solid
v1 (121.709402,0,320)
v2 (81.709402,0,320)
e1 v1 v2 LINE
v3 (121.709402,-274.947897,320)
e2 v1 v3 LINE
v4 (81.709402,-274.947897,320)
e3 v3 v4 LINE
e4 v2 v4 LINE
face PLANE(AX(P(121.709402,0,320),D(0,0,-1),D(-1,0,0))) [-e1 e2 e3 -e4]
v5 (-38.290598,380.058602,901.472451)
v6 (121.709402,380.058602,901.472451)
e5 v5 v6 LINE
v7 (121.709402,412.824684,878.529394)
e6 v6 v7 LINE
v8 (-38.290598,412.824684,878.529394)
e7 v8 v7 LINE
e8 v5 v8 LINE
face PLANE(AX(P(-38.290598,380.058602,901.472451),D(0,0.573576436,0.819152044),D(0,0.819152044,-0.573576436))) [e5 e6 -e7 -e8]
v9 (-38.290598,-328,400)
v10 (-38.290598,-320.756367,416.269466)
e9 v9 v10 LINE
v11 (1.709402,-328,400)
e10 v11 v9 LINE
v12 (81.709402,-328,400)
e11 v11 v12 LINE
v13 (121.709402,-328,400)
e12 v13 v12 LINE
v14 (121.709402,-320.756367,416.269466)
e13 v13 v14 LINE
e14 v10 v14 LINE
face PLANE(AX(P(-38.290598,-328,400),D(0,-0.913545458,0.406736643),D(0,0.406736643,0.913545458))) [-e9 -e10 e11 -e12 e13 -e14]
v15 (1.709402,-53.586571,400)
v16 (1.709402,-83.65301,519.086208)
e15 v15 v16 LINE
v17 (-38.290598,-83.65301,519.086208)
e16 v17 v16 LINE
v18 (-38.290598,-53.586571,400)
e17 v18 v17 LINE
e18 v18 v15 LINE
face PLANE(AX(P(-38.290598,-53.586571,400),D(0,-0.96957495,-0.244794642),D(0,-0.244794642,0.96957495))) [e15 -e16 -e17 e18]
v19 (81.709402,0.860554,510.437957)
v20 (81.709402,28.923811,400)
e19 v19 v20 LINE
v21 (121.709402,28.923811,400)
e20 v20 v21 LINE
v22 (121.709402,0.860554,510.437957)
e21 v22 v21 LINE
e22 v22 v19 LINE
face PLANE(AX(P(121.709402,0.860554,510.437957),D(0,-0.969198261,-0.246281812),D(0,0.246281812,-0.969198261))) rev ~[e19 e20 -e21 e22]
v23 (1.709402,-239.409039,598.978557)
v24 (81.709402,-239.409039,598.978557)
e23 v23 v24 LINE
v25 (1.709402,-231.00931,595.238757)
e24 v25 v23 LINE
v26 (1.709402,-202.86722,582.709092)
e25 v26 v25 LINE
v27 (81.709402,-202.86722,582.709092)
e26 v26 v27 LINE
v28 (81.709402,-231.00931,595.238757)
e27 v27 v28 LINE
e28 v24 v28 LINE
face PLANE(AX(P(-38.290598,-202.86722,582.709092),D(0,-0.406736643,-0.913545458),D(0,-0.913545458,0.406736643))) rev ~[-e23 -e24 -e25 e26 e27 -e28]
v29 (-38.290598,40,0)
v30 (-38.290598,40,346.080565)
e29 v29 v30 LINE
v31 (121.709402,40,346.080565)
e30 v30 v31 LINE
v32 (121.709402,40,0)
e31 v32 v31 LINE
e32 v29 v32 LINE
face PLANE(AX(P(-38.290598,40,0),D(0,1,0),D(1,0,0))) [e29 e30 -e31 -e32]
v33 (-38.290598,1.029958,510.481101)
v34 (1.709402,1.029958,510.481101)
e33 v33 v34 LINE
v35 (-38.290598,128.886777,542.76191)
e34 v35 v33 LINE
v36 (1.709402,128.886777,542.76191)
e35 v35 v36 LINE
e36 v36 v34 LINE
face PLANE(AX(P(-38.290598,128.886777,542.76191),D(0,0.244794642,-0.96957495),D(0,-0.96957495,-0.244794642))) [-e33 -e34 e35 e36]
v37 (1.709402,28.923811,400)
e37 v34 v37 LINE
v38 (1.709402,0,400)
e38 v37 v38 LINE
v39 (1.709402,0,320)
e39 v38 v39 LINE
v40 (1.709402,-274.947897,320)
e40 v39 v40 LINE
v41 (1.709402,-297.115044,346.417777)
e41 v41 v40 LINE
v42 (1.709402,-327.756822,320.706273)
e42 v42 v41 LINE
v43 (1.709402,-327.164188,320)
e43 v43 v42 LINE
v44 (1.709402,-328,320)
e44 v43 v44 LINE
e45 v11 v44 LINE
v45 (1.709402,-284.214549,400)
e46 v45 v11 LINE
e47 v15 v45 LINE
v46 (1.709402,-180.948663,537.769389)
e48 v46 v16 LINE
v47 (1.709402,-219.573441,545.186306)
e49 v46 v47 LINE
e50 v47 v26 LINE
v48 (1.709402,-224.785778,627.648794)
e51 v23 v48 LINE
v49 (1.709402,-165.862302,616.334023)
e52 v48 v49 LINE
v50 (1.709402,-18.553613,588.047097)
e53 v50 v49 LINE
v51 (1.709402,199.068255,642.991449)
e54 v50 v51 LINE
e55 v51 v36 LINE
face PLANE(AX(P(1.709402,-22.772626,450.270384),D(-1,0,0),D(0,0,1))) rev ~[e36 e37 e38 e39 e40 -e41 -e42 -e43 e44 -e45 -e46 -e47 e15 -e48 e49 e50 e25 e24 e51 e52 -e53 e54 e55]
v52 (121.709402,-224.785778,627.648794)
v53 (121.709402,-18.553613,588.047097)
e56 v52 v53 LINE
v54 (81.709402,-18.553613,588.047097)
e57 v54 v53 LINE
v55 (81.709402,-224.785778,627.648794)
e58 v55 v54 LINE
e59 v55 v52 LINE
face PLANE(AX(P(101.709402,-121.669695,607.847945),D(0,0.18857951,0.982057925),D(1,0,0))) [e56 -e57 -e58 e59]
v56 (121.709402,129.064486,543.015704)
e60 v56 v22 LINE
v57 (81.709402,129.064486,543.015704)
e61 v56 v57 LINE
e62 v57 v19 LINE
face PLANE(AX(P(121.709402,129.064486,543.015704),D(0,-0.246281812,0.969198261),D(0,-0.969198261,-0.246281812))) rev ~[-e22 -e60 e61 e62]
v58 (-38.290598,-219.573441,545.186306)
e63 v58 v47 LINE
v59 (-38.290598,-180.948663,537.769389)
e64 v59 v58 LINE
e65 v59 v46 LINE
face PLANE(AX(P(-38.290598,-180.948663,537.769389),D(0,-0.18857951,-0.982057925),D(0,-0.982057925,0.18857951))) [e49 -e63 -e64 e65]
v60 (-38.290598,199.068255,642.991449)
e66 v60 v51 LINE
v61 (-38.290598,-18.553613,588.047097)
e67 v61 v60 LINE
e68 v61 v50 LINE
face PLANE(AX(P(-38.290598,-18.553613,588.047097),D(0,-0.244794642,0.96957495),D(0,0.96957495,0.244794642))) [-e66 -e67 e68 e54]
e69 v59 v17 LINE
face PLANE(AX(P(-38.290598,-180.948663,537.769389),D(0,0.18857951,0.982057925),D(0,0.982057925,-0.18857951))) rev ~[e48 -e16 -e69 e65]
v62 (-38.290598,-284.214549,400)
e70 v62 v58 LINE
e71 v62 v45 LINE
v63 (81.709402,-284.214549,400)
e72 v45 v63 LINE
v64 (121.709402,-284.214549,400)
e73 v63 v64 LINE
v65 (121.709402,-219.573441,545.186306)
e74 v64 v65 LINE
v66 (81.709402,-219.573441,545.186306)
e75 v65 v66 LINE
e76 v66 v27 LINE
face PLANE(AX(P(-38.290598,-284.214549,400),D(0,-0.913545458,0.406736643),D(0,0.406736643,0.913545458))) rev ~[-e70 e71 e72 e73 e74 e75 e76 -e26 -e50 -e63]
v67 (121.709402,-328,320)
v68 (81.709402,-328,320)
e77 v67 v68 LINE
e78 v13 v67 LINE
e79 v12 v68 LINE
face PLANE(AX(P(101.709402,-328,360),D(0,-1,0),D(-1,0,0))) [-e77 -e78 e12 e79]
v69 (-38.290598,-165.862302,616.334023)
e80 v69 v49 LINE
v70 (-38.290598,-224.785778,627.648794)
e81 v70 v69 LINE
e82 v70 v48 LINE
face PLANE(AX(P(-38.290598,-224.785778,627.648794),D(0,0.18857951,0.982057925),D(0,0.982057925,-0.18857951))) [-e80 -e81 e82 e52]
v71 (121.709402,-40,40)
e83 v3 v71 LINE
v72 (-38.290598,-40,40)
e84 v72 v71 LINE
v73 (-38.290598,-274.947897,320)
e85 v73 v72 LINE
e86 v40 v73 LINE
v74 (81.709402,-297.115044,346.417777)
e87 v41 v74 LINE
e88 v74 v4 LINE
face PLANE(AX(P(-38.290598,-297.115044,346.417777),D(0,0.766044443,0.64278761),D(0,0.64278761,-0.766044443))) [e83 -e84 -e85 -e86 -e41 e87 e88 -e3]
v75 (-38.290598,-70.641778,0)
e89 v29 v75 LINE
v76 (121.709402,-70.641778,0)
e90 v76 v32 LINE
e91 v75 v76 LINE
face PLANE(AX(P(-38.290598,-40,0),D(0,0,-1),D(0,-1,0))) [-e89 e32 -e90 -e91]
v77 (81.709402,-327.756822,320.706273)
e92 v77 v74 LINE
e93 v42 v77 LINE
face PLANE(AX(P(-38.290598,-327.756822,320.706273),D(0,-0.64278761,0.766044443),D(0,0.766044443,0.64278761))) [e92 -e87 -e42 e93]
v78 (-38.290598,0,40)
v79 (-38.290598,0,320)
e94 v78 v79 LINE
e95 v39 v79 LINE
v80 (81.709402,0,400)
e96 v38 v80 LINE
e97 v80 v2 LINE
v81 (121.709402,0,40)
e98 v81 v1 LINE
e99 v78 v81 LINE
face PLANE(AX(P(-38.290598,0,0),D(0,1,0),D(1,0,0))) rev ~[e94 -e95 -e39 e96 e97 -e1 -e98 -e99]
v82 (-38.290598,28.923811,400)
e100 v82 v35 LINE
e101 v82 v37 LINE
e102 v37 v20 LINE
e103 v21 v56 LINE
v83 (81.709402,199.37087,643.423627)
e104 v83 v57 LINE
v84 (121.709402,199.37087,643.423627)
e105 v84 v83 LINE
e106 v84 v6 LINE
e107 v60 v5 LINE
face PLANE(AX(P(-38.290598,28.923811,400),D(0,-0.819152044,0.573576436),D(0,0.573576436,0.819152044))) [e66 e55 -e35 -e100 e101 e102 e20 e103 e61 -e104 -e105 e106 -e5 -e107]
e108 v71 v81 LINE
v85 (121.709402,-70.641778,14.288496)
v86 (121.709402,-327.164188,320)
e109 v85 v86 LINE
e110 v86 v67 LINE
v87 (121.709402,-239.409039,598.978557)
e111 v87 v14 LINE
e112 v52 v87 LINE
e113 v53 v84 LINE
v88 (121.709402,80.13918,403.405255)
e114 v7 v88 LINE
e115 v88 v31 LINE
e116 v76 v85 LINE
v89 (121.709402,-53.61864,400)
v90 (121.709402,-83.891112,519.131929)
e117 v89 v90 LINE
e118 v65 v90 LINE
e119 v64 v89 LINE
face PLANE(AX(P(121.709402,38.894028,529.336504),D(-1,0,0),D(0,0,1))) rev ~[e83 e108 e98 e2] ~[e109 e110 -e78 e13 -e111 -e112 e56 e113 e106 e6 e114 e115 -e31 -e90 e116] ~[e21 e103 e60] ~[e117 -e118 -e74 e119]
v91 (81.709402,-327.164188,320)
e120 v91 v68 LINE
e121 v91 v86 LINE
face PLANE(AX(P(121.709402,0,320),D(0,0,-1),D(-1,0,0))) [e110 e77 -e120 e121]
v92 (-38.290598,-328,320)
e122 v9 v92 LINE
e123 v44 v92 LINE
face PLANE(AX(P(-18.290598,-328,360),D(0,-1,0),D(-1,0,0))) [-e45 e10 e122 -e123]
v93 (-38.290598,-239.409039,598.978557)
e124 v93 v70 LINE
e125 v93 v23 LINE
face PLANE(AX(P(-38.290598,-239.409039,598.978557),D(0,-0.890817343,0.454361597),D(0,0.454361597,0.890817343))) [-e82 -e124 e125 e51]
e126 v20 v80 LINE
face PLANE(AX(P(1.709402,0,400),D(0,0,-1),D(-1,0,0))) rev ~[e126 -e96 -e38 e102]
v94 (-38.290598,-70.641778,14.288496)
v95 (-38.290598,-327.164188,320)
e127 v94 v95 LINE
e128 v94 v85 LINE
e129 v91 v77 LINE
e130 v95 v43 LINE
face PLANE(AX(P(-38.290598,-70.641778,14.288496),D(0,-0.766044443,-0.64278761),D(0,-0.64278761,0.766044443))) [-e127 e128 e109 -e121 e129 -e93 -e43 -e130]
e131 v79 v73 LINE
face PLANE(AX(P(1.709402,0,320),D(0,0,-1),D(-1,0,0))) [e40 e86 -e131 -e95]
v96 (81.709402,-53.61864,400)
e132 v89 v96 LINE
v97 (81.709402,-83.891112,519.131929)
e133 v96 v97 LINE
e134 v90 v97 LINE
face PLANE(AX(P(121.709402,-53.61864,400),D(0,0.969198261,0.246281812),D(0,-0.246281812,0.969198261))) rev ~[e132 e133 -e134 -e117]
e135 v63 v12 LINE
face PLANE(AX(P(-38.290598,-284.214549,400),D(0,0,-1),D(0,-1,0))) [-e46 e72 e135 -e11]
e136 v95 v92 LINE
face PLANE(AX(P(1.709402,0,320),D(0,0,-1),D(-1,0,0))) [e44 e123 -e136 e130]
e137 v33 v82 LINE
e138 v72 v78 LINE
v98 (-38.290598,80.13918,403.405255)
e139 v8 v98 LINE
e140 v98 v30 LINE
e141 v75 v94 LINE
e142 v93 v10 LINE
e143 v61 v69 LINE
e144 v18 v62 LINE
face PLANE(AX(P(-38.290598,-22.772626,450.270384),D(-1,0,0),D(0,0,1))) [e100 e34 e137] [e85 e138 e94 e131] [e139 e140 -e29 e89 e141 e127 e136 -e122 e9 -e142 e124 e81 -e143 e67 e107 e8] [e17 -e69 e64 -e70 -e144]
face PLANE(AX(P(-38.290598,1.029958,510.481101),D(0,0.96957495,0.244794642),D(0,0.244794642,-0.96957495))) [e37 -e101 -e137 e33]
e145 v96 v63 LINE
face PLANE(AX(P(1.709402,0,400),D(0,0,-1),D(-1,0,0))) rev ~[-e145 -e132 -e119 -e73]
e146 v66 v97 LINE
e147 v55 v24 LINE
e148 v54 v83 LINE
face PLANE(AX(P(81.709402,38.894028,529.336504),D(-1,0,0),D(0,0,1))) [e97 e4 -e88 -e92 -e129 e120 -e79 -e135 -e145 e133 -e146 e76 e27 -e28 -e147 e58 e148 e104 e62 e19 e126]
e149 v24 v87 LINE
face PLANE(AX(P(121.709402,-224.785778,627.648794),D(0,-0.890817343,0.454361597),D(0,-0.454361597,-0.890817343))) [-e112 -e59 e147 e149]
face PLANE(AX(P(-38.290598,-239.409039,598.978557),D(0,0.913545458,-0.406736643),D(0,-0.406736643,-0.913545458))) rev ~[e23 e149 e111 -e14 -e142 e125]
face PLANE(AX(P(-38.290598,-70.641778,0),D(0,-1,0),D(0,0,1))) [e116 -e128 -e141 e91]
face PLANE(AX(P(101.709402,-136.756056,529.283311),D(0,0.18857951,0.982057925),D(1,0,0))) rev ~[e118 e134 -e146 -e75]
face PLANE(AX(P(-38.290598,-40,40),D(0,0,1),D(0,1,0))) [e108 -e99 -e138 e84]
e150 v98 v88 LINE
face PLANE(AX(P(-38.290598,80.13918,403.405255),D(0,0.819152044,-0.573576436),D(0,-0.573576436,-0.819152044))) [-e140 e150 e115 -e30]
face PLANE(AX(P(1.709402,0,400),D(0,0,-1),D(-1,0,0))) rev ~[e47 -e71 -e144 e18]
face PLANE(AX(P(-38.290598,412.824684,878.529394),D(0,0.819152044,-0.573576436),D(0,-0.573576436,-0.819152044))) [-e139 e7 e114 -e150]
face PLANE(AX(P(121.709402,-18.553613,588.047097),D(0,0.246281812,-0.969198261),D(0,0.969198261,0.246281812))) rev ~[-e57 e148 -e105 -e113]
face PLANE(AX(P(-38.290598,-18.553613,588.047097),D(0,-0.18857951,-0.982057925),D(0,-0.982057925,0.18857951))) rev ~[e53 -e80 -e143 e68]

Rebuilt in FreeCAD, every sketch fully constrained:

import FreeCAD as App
import Part
import Sketcher
from FreeCAD import Vector
Q = App.Units.Quantity

doc = App.newDocument("Part")
body = doc.addObject("PartDesign::Body", "Body")

# Sketch on XY plane
sketch1 = doc.addObject("Sketcher::SketchObject", "Sketch")
body.addObject(sketch1)
sketch1.AttachmentSupport = (doc.XY_Plane, [""])
sketch1.MapMode = "FlatFace"
sketch1.addGeometry(Part.LineSegment(Vector(-38, 40, 0), Vector(-38, 0, 0)), False)
sketch1.addGeometry(Part.LineSegment(Vector(-38, 0, 0), Vector(122, 0, 0)), False)
sketch1.addGeometry(Part.LineSegment(Vector(122, 0, 0), Vector(122, 40, 0)), False)
sketch1.addGeometry(Part.LineSegment(Vector(122, 40, 0), Vector(-38, 40, 0)), False)
sketch1.addConstraint(Sketcher.Constraint("Coincident", 0, 2, 1, 1))
sketch1.addConstraint(Sketcher.Constraint("Coincident", 1, 2, 2, 1))
sketch1.addConstraint(Sketcher.Constraint("Coincident", 2, 2, 3, 1))
sketch1.addConstraint(Sketcher.Constraint("Coincident", 3, 2, 0, 1))
sketch1.addConstraint(Sketcher.Constraint("Vertical", 0))
sketch1.addConstraint(Sketcher.Constraint("Horizontal", 1))
sketch1.addConstraint(Sketcher.Constraint("Vertical", 2))
sketch1.addConstraint(Sketcher.Constraint("Horizontal", 3))
sketch1.addConstraint(Sketcher.Constraint("PointOnObject", 0, 2, -1))
sketch1.addConstraint(Sketcher.Constraint("DistanceX", 1, 1, 1, 2, Q("160 mm")))
sketch1.addConstraint(Sketcher.Constraint("DistanceY", 0, 2, 0, 1, Q("40 mm")))
sketch1.addConstraint(Sketcher.Constraint("DistanceX", 0, 2, -1, 1, Q("38.290598 mm")))
pad1 = doc.addObject("PartDesign::Pad", "Pad")
body.addObject(pad1)
pad1.Profile = sketch1
pad1.Length = 400

# Sketch on YZ plane
sketch2 = doc.addObject("Sketcher::SketchObject", "Sketch001")
body.addObject(sketch2)
sketch2.AttachmentSupport = (doc.YZ_Plane, [""])
sketch2.MapMode = "FlatFace"
sketch2.AttachmentOffset = App.Placement(Vector(0, 0, -38.290598), App.Rotation())
sketch2.addGeometry(Part.LineSegment(Vector(80, 403, 0), Vector(40, 346, 0)), False)
sketch2.addGeometry(Part.LineSegment(Vector(40, 346, 0), Vector(40, 400, 0)), False)
sketch2.addGeometry(Part.LineSegment(Vector(40, 400, 0), Vector(29, 400, 0)), False)
sketch2.addGeometry(Part.LineSegment(Vector(29, 400, 0), Vector(380, 901, 0)), False)
sketch2.addGeometry(Part.LineSegment(Vector(380, 901, 0), Vector(413, 879, 0)), False)
sketch2.addGeometry(Part.LineSegment(Vector(413, 879, 0), Vector(80, 403, 0)), False)
sketch2.addConstraint(Sketcher.Constraint("Coincident", 0, 2, 1, 1))
sketch2.addConstraint(Sketcher.Constraint("Coincident", 1, 2, 2, 1))
sketch2.addConstraint(Sketcher.Constraint("Coincident", 2, 2, 3, 1))
sketch2.addConstraint(Sketcher.Constraint("Coincident", 3, 2, 4, 1))
sketch2.addConstraint(Sketcher.Constraint("Coincident", 4, 2, 5, 1))
sketch2.addConstraint(Sketcher.Constraint("Coincident", 5, 2, 0, 1))
sketch2.addConstraint(Sketcher.Constraint("Vertical", 1))
sketch2.addConstraint(Sketcher.Constraint("Horizontal", 2))
sketch2.addConstraint(Sketcher.Constraint("Parallel", 0, 3))
sketch2.addConstraint(Sketcher.Constraint("Perpendicular", 3, 4))
sketch2.addConstraint(Sketcher.Constraint("Perpendicular", 4, 5))
sketch2.addConstraint(Sketcher.Constraint("Angle", 0, Q("-125 deg")))
sketch2.addConstraint(Sketcher.Constraint("Distance", 4, Q("40 mm")))
sketch2.addConstraint(Sketcher.Constraint("DistanceX", -1, 1, 0, 2, Q("40 mm")))
sketch2.addConstraint(Sketcher.Constraint("DistanceY", -1, 1, 1, 2, Q("400 mm")))
sketch2.addConstraint(Sketcher.Constraint("DistanceX", 2, 2, 2, 1, Q("11.076189 mm")))
sketch2.addConstraint(Sketcher.Constraint("DistanceX", -1, 1, 3, 2, Q("380.058602 mm")))
sketch2.addConstraint(Sketcher.Constraint("DistanceX", -1, 1, 5, 2, Q("80.13918 mm")))
pad2 = doc.addObject("PartDesign::Pad", "Pad001")
body.addObject(pad2)
pad2.Profile = sketch2
pad2.Length = 160

# Sketch on YZ plane
sketch3 = doc.addObject("Sketcher::SketchObject", "Sketch002")
body.addObject(sketch3)
sketch3.AttachmentSupport = (doc.YZ_Plane, [""])
sketch3.MapMode = "FlatFace"
sketch3.AttachmentOffset = App.Placement(Vector(0, 0, -38.290598), App.Rotation())
sketch3.addGeometry(Part.LineSegment(Vector(0, 0, 0), Vector(-40, 0, 0)), False)
sketch3.addGeometry(Part.LineSegment(Vector(-40, 0, 0), Vector(-40, 40, 0)), False)
sketch3.addGeometry(Part.LineSegment(Vector(-40, 40, 0), Vector(0, 40, 0)), False)
sketch3.addGeometry(Part.LineSegment(Vector(0, 40, 0), Vector(0, 0, 0)), False)
sketch3.addConstraint(Sketcher.Constraint("Coincident", 0, 2, 1, 1))
sketch3.addConstraint(Sketcher.Constraint("Coincident", 1, 2, 2, 1))
sketch3.addConstraint(Sketcher.Constraint("Coincident", 2, 2, 3, 1))
sketch3.addConstraint(Sketcher.Constraint("Coincident", 3, 2, 0, 1))
sketch3.addConstraint(Sketcher.Constraint("Horizontal", 0))
sketch3.addConstraint(Sketcher.Constraint("Vertical", 1))
sketch3.addConstraint(Sketcher.Constraint("Horizontal", 2))
sketch3.addConstraint(Sketcher.Constraint("Vertical", 3))
sketch3.addConstraint(Sketcher.Constraint("Coincident", 3, 2, -1, 1))
sketch3.addConstraint(Sketcher.Constraint("Equal", 2, 1))
sketch3.addConstraint(Sketcher.Constraint("DistanceX", 0, 2, 0, 1, Q("40 mm")))
pad3 = doc.addObject("PartDesign::Pad", "Pad002")
body.addObject(pad3)
pad3.Profile = sketch3
pad3.Length = 160

# Sketch on YZ plane
sketch4 = doc.addObject("Sketcher::SketchObject", "Sketch003")
body.addObject(sketch4)
sketch4.AttachmentSupport = (doc.YZ_Plane, [""])
sketch4.MapMode = "FlatFace"
sketch4.AttachmentOffset = App.Placement(Vector(0, 0, -38.290598), App.Rotation())
sketch4.addGeometry(Part.LineSegment(Vector(-297, 346, 0), Vector(-40, 40, 0)), False)
sketch4.addGeometry(Part.LineSegment(Vector(-40, 40, 0), Vector(-40, 0, 0)), False)
sketch4.addGeometry(Part.LineSegment(Vector(-40, 0, 0), Vector(-71, 0, 0)), False)
sketch4.addGeometry(Part.LineSegment(Vector(-71, 0, 0), Vector(-71, 14, 0)), False)
sketch4.addGeometry(Part.LineSegment(Vector(-71, 14, 0), Vector(-328, 321, 0)), False)
sketch4.addGeometry(Part.LineSegment(Vector(-328, 321, 0), Vector(-297, 346, 0)), False)
sketch4.addConstraint(Sketcher.Constraint("Coincident", 0, 2, 1, 1))
sketch4.addConstraint(Sketcher.Constraint("Coincident", 1, 2, 2, 1))
sketch4.addConstraint(Sketcher.Constraint("Coincident", 2, 2, 3, 1))
sketch4.addConstraint(Sketcher.Constraint("Coincident", 3, 2, 4, 1))
sketch4.addConstraint(Sketcher.Constraint("Coincident", 4, 2, 5, 1))
sketch4.addConstraint(Sketcher.Constraint("Coincident", 5, 2, 0, 1))
sketch4.addConstraint(Sketcher.Constraint("Vertical", 1))
sketch4.addConstraint(Sketcher.Constraint("Horizontal", 2))
sketch4.addConstraint(Sketcher.Constraint("Vertical", 3))
sketch4.addConstraint(Sketcher.Constraint("PointOnObject", 1, 2, -1))
sketch4.addConstraint(Sketcher.Constraint("Parallel", 0, 4))
sketch4.addConstraint(Sketcher.Constraint("Perpendicular", 4, 5))
sketch4.addConstraint(Sketcher.Constraint("Equal", 0, 4))
sketch4.addConstraint(Sketcher.Constraint("DistanceY", 1, 2, 1, 1, Q("40 mm")))
sketch4.addConstraint(Sketcher.Constraint("Angle", 0, Q("-50 deg")))
sketch4.addConstraint(Sketcher.Constraint("Distance", 0, Q("400 mm")))
sketch4.addConstraint(Sketcher.Constraint("Distance", 5, Q("40 mm")))
sketch4.addConstraint(Sketcher.Constraint("DistanceX", 0, 2, -1, 1, Q("40 mm")))
pad4 = doc.addObject("PartDesign::Pad", "Pad003")
body.addObject(pad4)
pad4.Profile = sketch4
pad4.Length = 160

# Sketch on XZ plane
sketch5 = doc.addObject("Sketcher::SketchObject", "Sketch004")
body.addObject(sketch5)
sketch5.AttachmentSupport = (doc.XZ_Plane, [""])
sketch5.MapMode = "FlatFace"
sketch5.addGeometry(Part.LineSegment(Vector(2, 320, 0), Vector(2, 400, 0)), False)
sketch5.addGeometry(Part.LineSegment(Vector(2, 400, 0), Vector(-38, 400, 0)), False)
sketch5.addGeometry(Part.LineSegment(Vector(-38, 400, 0), Vector(-38, 320, 0)), False)
sketch5.addGeometry(Part.LineSegment(Vector(-38, 320, 0), Vector(2, 320, 0)), False)
sketch5.addGeometry(Part.LineSegment(Vector(122, 320, 0), Vector(122, 400, 0)), False)
sketch5.addGeometry(Part.LineSegment(Vector(122, 400, 0), Vector(82, 400, 0)), False)
sketch5.addGeometry(Part.LineSegment(Vector(82, 400, 0), Vector(82, 320, 0)), False)
sketch5.addGeometry(Part.LineSegment(Vector(82, 320, 0), Vector(122, 320, 0)), False)
sketch5.addConstraint(Sketcher.Constraint("Coincident", 0, 2, 1, 1))
sketch5.addConstraint(Sketcher.Constraint("Coincident", 1, 2, 2, 1))
sketch5.addConstraint(Sketcher.Constraint("Coincident", 2, 2, 3, 1))
sketch5.addConstraint(Sketcher.Constraint("Coincident", 3, 2, 0, 1))
sketch5.addConstraint(Sketcher.Constraint("Coincident", 4, 2, 5, 1))
sketch5.addConstraint(Sketcher.Constraint("Coincident", 5, 2, 6, 1))
sketch5.addConstraint(Sketcher.Constraint("Coincident", 6, 2, 7, 1))
sketch5.addConstraint(Sketcher.Constraint("Coincident", 7, 2, 4, 1))
sketch5.addConstraint(Sketcher.Constraint("Vertical", 0))
sketch5.addConstraint(Sketcher.Constraint("Horizontal", 1))
sketch5.addConstraint(Sketcher.Constraint("Vertical", 2))
sketch5.addConstraint(Sketcher.Constraint("Horizontal", 3))
sketch5.addConstraint(Sketcher.Constraint("Vertical", 4))
sketch5.addConstraint(Sketcher.Constraint("Horizontal", 5))
sketch5.addConstraint(Sketcher.Constraint("Vertical", 6))
sketch5.addConstraint(Sketcher.Constraint("Horizontal", 7))
sketch5.addConstraint(Sketcher.Constraint("Horizontal", 1, 2, 4, 2))
sketch5.addConstraint(Sketcher.Constraint("Horizontal", 3, 2, 6, 2))
sketch5.addConstraint(Sketcher.Constraint("Equal", 3, 5))
sketch5.addConstraint(Sketcher.Constraint("DistanceX", 1, 2, 1, 1, Q("40 mm")))
sketch5.addConstraint(Sketcher.Constraint("DistanceY", 0, 1, 0, 2, Q("80 mm")))
sketch5.addConstraint(Sketcher.Constraint("DistanceY", -1, 1, 0, 2, Q("400 mm")))
sketch5.addConstraint(Sketcher.Constraint("DistanceX", 0, 2, 4, 2, Q("120 mm")))
sketch5.addConstraint(Sketcher.Constraint("DistanceX", -1, 1, 0, 2, Q("1.709402 mm")))
pad5 = doc.addObject("PartDesign::Pad", "Pad004")
body.addObject(pad5)
pad5.Profile = sketch5
pad5.Length = 328

# Sketch on YZ plane
sketch6 = doc.addObject("Sketcher::SketchObject", "Sketch005")
body.addObject(sketch6)
sketch6.AttachmentSupport = (doc.YZ_Plane, [""])
sketch6.MapMode = "FlatFace"
sketch6.AttachmentOffset = App.Placement(Vector(0, 0, -38.290598), App.Rotation())
sketch6.addGeometry(Part.LineSegment(Vector(-284, 400, 0), Vector(-328, 400, 0)), False)
sketch6.addGeometry(Part.LineSegment(Vector(-328, 400, 0), Vector(-321, 416, 0)), False)
sketch6.addGeometry(Part.LineSegment(Vector(-321, 416, 0), Vector(-239, 599, 0)), False)
sketch6.addGeometry(Part.LineSegment(Vector(-239, 599, 0), Vector(-203, 583, 0)), False)
sketch6.addGeometry(Part.LineSegment(Vector(-203, 583, 0), Vector(-284, 400, 0)), False)
sketch6.addConstraint(Sketcher.Constraint("Coincident", 0, 2, 1, 1))
sketch6.addConstraint(Sketcher.Constraint("Coincident", 1, 2, 2, 1))
sketch6.addConstraint(Sketcher.Constraint("Coincident", 2, 2, 3, 1))
sketch6.addConstraint(Sketcher.Constraint("Coincident", 3, 2, 4, 1))
sketch6.addConstraint(Sketcher.Constraint("Coincident", 4, 2, 0, 1))
sketch6.addConstraint(Sketcher.Constraint("Horizontal", 0))
sketch6.addConstraint(Sketcher.Constraint("Parallel", 1, 2))
sketch6.addConstraint(Sketcher.Constraint("Perpendicular", 2, 3))
sketch6.addConstraint(Sketcher.Constraint("Perpendicular", 3, 4))
sketch6.addConstraint(Sketcher.Constraint("Equal", 2, 4))
sketch6.addConstraint(Sketcher.Constraint("Angle", 1, Q("66 deg")))
sketch6.addConstraint(Sketcher.Constraint("Distance", 2, Q("200 mm")))
sketch6.addConstraint(Sketcher.Constraint("Distance", 3, Q("40 mm")))
sketch6.addConstraint(Sketcher.Constraint("DistanceX", 0, 2, -1, 1, Q("328 mm")))
sketch6.addConstraint(Sketcher.Constraint("DistanceY", -1, 1, 0, 2, Q("400 mm")))
pad6 = doc.addObject("PartDesign::Pad", "Pad005")
body.addObject(pad6)
pad6.Profile = sketch6
pad6.Length = 160

# Sketch on YZ plane
sketch7 = doc.addObject("Sketcher::SketchObject", "Sketch006")
body.addObject(sketch7)
sketch7.AttachmentSupport = (doc.YZ_Plane, [""])
sketch7.MapMode = "FlatFace"
sketch7.AttachmentOffset = App.Placement(Vector(0, 0, -38.290598), App.Rotation())
sketch7.addGeometry(Part.LineSegment(Vector(-19, 588, 0), Vector(-34, 509, 0)), False)
sketch7.addGeometry(Part.LineSegment(Vector(-34, 509, 0), Vector(-181, 538, 0)), False)
sketch7.addGeometry(Part.LineSegment(Vector(-181, 538, 0), Vector(-220, 545, 0)), False)
sketch7.addGeometry(Part.LineSegment(Vector(-220, 545, 0), Vector(-203, 583, 0)), False)
sketch7.addGeometry(Part.LineSegment(Vector(-203, 583, 0), Vector(-231, 595, 0)), False)
sketch7.addGeometry(Part.LineSegment(Vector(-231, 595, 0), Vector(-239, 599, 0)), False)
sketch7.addGeometry(Part.LineSegment(Vector(-239, 599, 0), Vector(-225, 628, 0)), False)
sketch7.addGeometry(Part.LineSegment(Vector(-225, 628, 0), Vector(-166, 616, 0)), False)
sketch7.addGeometry(Part.LineSegment(Vector(-166, 616, 0), Vector(-19, 588, 0)), False)
sketch7.addConstraint(Sketcher.Constraint("Coincident", 0, 2, 1, 1))
sketch7.addConstraint(Sketcher.Constraint("Coincident", 1, 2, 2, 1))
sketch7.addConstraint(Sketcher.Constraint("Coincident", 2, 2, 3, 1))
sketch7.addConstraint(Sketcher.Constraint("Coincident", 3, 2, 4, 1))
sketch7.addConstraint(Sketcher.Constraint("Coincident", 4, 2, 5, 1))
sketch7.addConstraint(Sketcher.Constraint("Coincident", 5, 2, 6, 1))
sketch7.addConstraint(Sketcher.Constraint("Coincident", 6, 2, 7, 1))
sketch7.addConstraint(Sketcher.Constraint("Coincident", 7, 2, 8, 1))
sketch7.addConstraint(Sketcher.Constraint("Coincident", 8, 2, 0, 1))
sketch7.addConstraint(Sketcher.Constraint("Perpendicular", 0, 1))
sketch7.addConstraint(Sketcher.Constraint("Parallel", 1, 2))
sketch7.addConstraint(Sketcher.Constraint("Perpendicular", 3, 4))
sketch7.addConstraint(Sketcher.Constraint("Parallel", 4, 5))
sketch7.addConstraint(Sketcher.Constraint("Parallel", 2, 7))
sketch7.addConstraint(Sketcher.Constraint("Parallel", 7, 8))
sketch7.addConstraint(Sketcher.Constraint("Equal", 1, 8))
sketch7.addConstraint(Sketcher.Constraint("Angle", 3, Q("66 deg")))
sketch7.addConstraint(Sketcher.Constraint("Distance", 0, Q("80 mm")))
sketch7.addConstraint(Sketcher.Constraint("Distance", 1, Q("150 mm")))
sketch7.addConstraint(Sketcher.Constraint("Distance", 7, Q("60 mm")))
sketch7.addConstraint(Sketcher.Constraint("DistanceY", 4, 2, 5, 2, Q("3.7398 mm")))
sketch7.addConstraint(Sketcher.Constraint("Distance", 4, Q("30.805352 mm")))
sketch7.addConstraint(Sketcher.Constraint("DistanceY", -1, 1, 1, 2, Q("537.769389 mm")))
sketch7.addConstraint(Sketcher.Constraint("DistanceX", 2, 2, -1, 1, Q("219.573441 mm")))
sketch7.addConstraint(Sketcher.Constraint("DistanceX", 3, 2, -1, 1, Q("202.86722 mm")))
sketch7.addConstraint(Sketcher.Constraint("DistanceY", -1, 1, 3, 2, Q("582.709092 mm")))
sketch7.addConstraint(Sketcher.Constraint("DistanceX", 1, 2, 0, 2, Q("147.308689 mm")))
pad7 = doc.addObject("PartDesign::Pad", "Pad006")
body.addObject(pad7)
pad7.Profile = sketch7
pad7.Length = 40

# Sketch on an angled plane
sketch8 = doc.addObject("Sketcher::SketchObject", "Sketch007")
body.addObject(sketch8)
sketch8.Placement = App.Placement(Vector(0, 108.244164, 563.698775), App.Rotation(Vector(1, 0, 0), Vector(0, 0.982057925, -0.18857951), Vector(0, 0.18857951, 0.982057925), "ZXY"))
sketch8.addGeometry(Part.LineSegment(Vector(82, -129, 0), Vector(82, -339, 0)), False)
sketch8.addGeometry(Part.LineSegment(Vector(82, -339, 0), Vector(122, -339, 0)), False)
sketch8.addGeometry(Part.LineSegment(Vector(122, -339, 0), Vector(122, -129, 0)), False)
sketch8.addGeometry(Part.LineSegment(Vector(122, -129, 0), Vector(82, -129, 0)), False)
sketch8.addConstraint(Sketcher.Constraint("Coincident", 0, 2, 1, 1))
sketch8.addConstraint(Sketcher.Constraint("Coincident", 1, 2, 2, 1))
sketch8.addConstraint(Sketcher.Constraint("Coincident", 2, 2, 3, 1))
sketch8.addConstraint(Sketcher.Constraint("Coincident", 3, 2, 0, 1))
sketch8.addConstraint(Sketcher.Constraint("Vertical", 0))
sketch8.addConstraint(Sketcher.Constraint("Horizontal", 1))
sketch8.addConstraint(Sketcher.Constraint("Vertical", 2))
sketch8.addConstraint(Sketcher.Constraint("Horizontal", 3))
sketch8.addConstraint(Sketcher.Constraint("DistanceX", 1, 1, 1, 2, Q("40 mm")))
sketch8.addConstraint(Sketcher.Constraint("DistanceY", 0, 2, 0, 1, Q("210 mm")))
sketch8.addConstraint(Sketcher.Constraint("DistanceX", -1, 1, 0, 2, Q("81.709402 mm")))
sketch8.addConstraint(Sketcher.Constraint("DistanceY", 0, 2, -1, 1, Q("339.114356 mm")))
pad8 = doc.addObject("PartDesign::Pad", "Pad007")
body.addObject(pad8)
pad8.Profile = sketch8
pad8.Length = 80
pad8.Reversed = True

# Sketch on YZ plane
sketch9 = doc.addObject("Sketcher::SketchObject", "Sketch008")
body.addObject(sketch9)
sketch9.AttachmentSupport = (doc.YZ_Plane, [""])
sketch9.MapMode = "FlatFace"
sketch9.AttachmentOffset = App.Placement(Vector(0, 0, 121.709402), App.Rotation())
sketch9.addGeometry(Part.LineSegment(Vector(-225, 628, 0), Vector(-239, 599, 0)), False)
sketch9.addGeometry(Part.LineSegment(Vector(-239, 599, 0), Vector(-231, 595, 0)), False)
sketch9.addGeometry(Part.LineSegment(Vector(-231, 595, 0), Vector(-225, 628, 0)), False)
sketch9.addConstraint(Sketcher.Constraint("Coincident", 0, 2, 1, 1))
sketch9.addConstraint(Sketcher.Constraint("Coincident", 1, 2, 2, 1))
sketch9.addConstraint(Sketcher.Constraint("Coincident", 2, 2, 0, 1))
sketch9.addConstraint(Sketcher.Constraint("Angle", 1, Q("-24 deg")))
sketch9.addConstraint(Sketcher.Constraint("DistanceY", 1, 2, 0, 2, Q("3.7398 mm")))
sketch9.addConstraint(Sketcher.Constraint("DistanceX", 0, 2, -1, 1, Q("239.409039 mm")))
sketch9.addConstraint(Sketcher.Constraint("DistanceX", 0, 2, 2, 2, Q("14.623261 mm")))
sketch9.addConstraint(Sketcher.Constraint("Distance", 0, Q("32.184192 mm")))
sketch9.addConstraint(Sketcher.Constraint("DistanceY", -1, 1, 0, 2, Q("598.978557 mm")))
pad9 = doc.addObject("PartDesign::Pad", "Pad008")
body.addObject(pad9)
pad9.Profile = sketch9
pad9.Length = 40
pad9.Reversed = True

# Sketch on YZ plane
sketch10 = doc.addObject("Sketcher::SketchObject", "Sketch009")
body.addObject(sketch10)
sketch10.AttachmentSupport = (doc.YZ_Plane, [""])
sketch10.MapMode = "FlatFace"
sketch10.AttachmentOffset = App.Placement(Vector(0, 0, -38.290598), App.Rotation())
sketch10.addGeometry(Part.LineSegment(Vector(-54, 400, 0), Vector(-84, 519, 0)), False)
sketch10.addGeometry(Part.LineSegment(Vector(-84, 519, 0), Vector(-62, 515, 0)), False)
sketch10.addGeometry(Part.LineSegment(Vector(-62, 515, 0), Vector(-34, 509, 0)), False)
sketch10.addGeometry(Part.LineSegment(Vector(-34, 509, 0), Vector(-19, 588, 0)), False)
sketch10.addGeometry(Part.LineSegment(Vector(-19, 588, 0), Vector(199, 643, 0)), False)
sketch10.addGeometry(Part.LineSegment(Vector(199, 643, 0), Vector(129, 543, 0)), False)
sketch10.addGeometry(Part.LineSegment(Vector(129, 543, 0), Vector(1, 510, 0)), False)
sketch10.addGeometry(Part.LineSegment(Vector(1, 510, 0), Vector(29, 400, 0)), False)
sketch10.addGeometry(Part.LineSegment(Vector(29, 400, 0), Vector(-54, 400, 0)), False)
sketch10.addConstraint(Sketcher.Constraint("Coincident", 0, 2, 1, 1))
sketch10.addConstraint(Sketcher.Constraint("Coincident", 1, 2, 2, 1))
sketch10.addConstraint(Sketcher.Constraint("Coincident", 2, 2, 3, 1))
sketch10.addConstraint(Sketcher.Constraint("Coincident", 3, 2, 4, 1))
sketch10.addConstraint(Sketcher.Constraint("Coincident", 4, 2, 5, 1))
sketch10.addConstraint(Sketcher.Constraint("Coincident", 5, 2, 6, 1))
sketch10.addConstraint(Sketcher.Constraint("Coincident", 6, 2, 7, 1))
sketch10.addConstraint(Sketcher.Constraint("Coincident", 7, 2, 8, 1))
sketch10.addConstraint(Sketcher.Constraint("Coincident", 8, 2, 0, 1))
sketch10.addConstraint(Sketcher.Constraint("Horizontal", 8))
sketch10.addConstraint(Sketcher.Constraint("Parallel", 1, 2))
sketch10.addConstraint(Sketcher.Constraint("Perpendicular", 2, 3))
sketch10.addConstraint(Sketcher.Constraint("Perpendicular", 0, 4))
sketch10.addConstraint(Sketcher.Constraint("Parallel", 4, 6))
sketch10.addConstraint(Sketcher.Constraint("Perpendicular", 6, 7))
sketch10.addConstraint(Sketcher.Constraint("Angle", 5, Q("-125 deg")))
sketch10.addConstraint(Sketcher.Constraint("Distance", 3, Q("80 mm")))
sketch10.addConstraint(Sketcher.Constraint("DistanceY", -1, 1, 7, 2, Q("400 mm")))
sketch10.addConstraint(Sketcher.Constraint("DistanceY", -1, 1, 6, 2, Q("510.481101 mm")))
sketch10.addConstraint(Sketcher.Constraint("DistanceX", 8, 2, 8, 1, Q("82.510383 mm")))
sketch10.addConstraint(Sketcher.Constraint("DistanceX", 0, 2, -1, 1, Q("83.65301 mm")))
sketch10.addConstraint(Sketcher.Constraint("DistanceX", 1, 2, -1, 1, Q("62.173691 mm")))
sketch10.addConstraint(Sketcher.Constraint("DistanceY", -1, 1, 4, 2, Q("642.991449 mm")))
sketch10.addConstraint(Sketcher.Constraint("DistanceY", -1, 1, 5, 2, Q("542.76191 mm")))
sketch10.addConstraint(Sketcher.Constraint("DistanceX", -1, 1, 6, 2, Q("1.029958 mm")))
sketch10.addConstraint(Sketcher.Constraint("DistanceX", -1, 1, 7, 2, Q("28.923811 mm")))
sketch10.addConstraint(Sketcher.Constraint("DistanceX", 2, 2, 3, 2, Q("15.086361 mm")))
pad10 = doc.addObject("PartDesign::Pad", "Pad009")
body.addObject(pad10)
pad10.Profile = sketch10
pad10.Length = 40

# Sketch on YZ plane
sketch11 = doc.addObject("Sketcher::SketchObject", "Sketch010")
body.addObject(sketch11)
sketch11.AttachmentSupport = (doc.YZ_Plane, [""])
sketch11.MapMode = "FlatFace"
sketch11.AttachmentOffset = App.Placement(Vector(0, 0, 121.709402), App.Rotation())
sketch11.addGeometry(Part.LineSegment(Vector(199, 643, 0), Vector(-19, 588, 0)), False)
sketch11.addGeometry(Part.LineSegment(Vector(-19, 588, 0), Vector(-34, 509, 0)), False)
sketch11.addGeometry(Part.LineSegment(Vector(-34, 509, 0), Vector(-84, 519, 0)), False)
sketch11.addGeometry(Part.LineSegment(Vector(-84, 519, 0), Vector(-54, 400, 0)), False)
sketch11.addGeometry(Part.LineSegment(Vector(-54, 400, 0), Vector(29, 400, 0)), False)
sketch11.addGeometry(Part.LineSegment(Vector(29, 400, 0), Vector(1, 510, 0)), False)
sketch11.addGeometry(Part.LineSegment(Vector(1, 510, 0), Vector(129, 543, 0)), False)
sketch11.addGeometry(Part.LineSegment(Vector(129, 543, 0), Vector(199, 643, 0)), False)
sketch11.addConstraint(Sketcher.Constraint("Coincident", 0, 2, 1, 1))
sketch11.addConstraint(Sketcher.Constraint("Coincident", 1, 2, 2, 1))
sketch11.addConstraint(Sketcher.Constraint("Coincident", 2, 2, 3, 1))
sketch11.addConstraint(Sketcher.Constraint("Coincident", 3, 2, 4, 1))
sketch11.addConstraint(Sketcher.Constraint("Coincident", 4, 2, 5, 1))
sketch11.addConstraint(Sketcher.Constraint("Coincident", 5, 2, 6, 1))
sketch11.addConstraint(Sketcher.Constraint("Coincident", 6, 2, 7, 1))
sketch11.addConstraint(Sketcher.Constraint("Coincident", 7, 2, 0, 1))
sketch11.addConstraint(Sketcher.Constraint("Horizontal", 4))
sketch11.addConstraint(Sketcher.Constraint("Perpendicular", 1, 2))
sketch11.addConstraint(Sketcher.Constraint("Perpendicular", 0, 3))
sketch11.addConstraint(Sketcher.Constraint("Parallel", 3, 5))
sketch11.addConstraint(Sketcher.Constraint("Perpendicular", 5, 6))
sketch11.addConstraint(Sketcher.Constraint("Angle", 7, Q("55 deg")))
sketch11.addConstraint(Sketcher.Constraint("Distance", 1, Q("80 mm")))
sketch11.addConstraint(Sketcher.Constraint("DistanceY", -1, 1, 3, 2, Q("400 mm")))
sketch11.addConstraint(Sketcher.Constraint("DistanceX", 4, 1, 4, 2, Q("82.542451 mm")))
sketch11.addConstraint(Sketcher.Constraint("DistanceX", 2, 2, 0, 2, Q("65.337499 mm")))
sketch11.addConstraint(Sketcher.Constraint("DistanceX", 0, 2, 6, 2, Q("147.618099 mm")))
sketch11.addConstraint(Sketcher.Constraint("Distance", 2, Q("51.16922 mm")))
sketch11.addConstraint(Sketcher.Constraint("Distance", 7, Q("122.57544 mm")))
sketch11.addConstraint(Sketcher.Constraint("DistanceX", 2, 2, -1, 1, Q("83.891112 mm")))
sketch11.addConstraint(Sketcher.Constraint("DistanceY", -1, 1, 2, 2, Q("519.131929 mm")))
sketch11.addConstraint(Sketcher.Constraint("DistanceX", 3, 2, -1, 1, Q("53.61864 mm")))
pad11 = doc.addObject("PartDesign::Pad", "Pad010")
body.addObject(pad11)
pad11.Profile = sketch11
pad11.Length = 40
pad11.Reversed = True

doc.recompute()
